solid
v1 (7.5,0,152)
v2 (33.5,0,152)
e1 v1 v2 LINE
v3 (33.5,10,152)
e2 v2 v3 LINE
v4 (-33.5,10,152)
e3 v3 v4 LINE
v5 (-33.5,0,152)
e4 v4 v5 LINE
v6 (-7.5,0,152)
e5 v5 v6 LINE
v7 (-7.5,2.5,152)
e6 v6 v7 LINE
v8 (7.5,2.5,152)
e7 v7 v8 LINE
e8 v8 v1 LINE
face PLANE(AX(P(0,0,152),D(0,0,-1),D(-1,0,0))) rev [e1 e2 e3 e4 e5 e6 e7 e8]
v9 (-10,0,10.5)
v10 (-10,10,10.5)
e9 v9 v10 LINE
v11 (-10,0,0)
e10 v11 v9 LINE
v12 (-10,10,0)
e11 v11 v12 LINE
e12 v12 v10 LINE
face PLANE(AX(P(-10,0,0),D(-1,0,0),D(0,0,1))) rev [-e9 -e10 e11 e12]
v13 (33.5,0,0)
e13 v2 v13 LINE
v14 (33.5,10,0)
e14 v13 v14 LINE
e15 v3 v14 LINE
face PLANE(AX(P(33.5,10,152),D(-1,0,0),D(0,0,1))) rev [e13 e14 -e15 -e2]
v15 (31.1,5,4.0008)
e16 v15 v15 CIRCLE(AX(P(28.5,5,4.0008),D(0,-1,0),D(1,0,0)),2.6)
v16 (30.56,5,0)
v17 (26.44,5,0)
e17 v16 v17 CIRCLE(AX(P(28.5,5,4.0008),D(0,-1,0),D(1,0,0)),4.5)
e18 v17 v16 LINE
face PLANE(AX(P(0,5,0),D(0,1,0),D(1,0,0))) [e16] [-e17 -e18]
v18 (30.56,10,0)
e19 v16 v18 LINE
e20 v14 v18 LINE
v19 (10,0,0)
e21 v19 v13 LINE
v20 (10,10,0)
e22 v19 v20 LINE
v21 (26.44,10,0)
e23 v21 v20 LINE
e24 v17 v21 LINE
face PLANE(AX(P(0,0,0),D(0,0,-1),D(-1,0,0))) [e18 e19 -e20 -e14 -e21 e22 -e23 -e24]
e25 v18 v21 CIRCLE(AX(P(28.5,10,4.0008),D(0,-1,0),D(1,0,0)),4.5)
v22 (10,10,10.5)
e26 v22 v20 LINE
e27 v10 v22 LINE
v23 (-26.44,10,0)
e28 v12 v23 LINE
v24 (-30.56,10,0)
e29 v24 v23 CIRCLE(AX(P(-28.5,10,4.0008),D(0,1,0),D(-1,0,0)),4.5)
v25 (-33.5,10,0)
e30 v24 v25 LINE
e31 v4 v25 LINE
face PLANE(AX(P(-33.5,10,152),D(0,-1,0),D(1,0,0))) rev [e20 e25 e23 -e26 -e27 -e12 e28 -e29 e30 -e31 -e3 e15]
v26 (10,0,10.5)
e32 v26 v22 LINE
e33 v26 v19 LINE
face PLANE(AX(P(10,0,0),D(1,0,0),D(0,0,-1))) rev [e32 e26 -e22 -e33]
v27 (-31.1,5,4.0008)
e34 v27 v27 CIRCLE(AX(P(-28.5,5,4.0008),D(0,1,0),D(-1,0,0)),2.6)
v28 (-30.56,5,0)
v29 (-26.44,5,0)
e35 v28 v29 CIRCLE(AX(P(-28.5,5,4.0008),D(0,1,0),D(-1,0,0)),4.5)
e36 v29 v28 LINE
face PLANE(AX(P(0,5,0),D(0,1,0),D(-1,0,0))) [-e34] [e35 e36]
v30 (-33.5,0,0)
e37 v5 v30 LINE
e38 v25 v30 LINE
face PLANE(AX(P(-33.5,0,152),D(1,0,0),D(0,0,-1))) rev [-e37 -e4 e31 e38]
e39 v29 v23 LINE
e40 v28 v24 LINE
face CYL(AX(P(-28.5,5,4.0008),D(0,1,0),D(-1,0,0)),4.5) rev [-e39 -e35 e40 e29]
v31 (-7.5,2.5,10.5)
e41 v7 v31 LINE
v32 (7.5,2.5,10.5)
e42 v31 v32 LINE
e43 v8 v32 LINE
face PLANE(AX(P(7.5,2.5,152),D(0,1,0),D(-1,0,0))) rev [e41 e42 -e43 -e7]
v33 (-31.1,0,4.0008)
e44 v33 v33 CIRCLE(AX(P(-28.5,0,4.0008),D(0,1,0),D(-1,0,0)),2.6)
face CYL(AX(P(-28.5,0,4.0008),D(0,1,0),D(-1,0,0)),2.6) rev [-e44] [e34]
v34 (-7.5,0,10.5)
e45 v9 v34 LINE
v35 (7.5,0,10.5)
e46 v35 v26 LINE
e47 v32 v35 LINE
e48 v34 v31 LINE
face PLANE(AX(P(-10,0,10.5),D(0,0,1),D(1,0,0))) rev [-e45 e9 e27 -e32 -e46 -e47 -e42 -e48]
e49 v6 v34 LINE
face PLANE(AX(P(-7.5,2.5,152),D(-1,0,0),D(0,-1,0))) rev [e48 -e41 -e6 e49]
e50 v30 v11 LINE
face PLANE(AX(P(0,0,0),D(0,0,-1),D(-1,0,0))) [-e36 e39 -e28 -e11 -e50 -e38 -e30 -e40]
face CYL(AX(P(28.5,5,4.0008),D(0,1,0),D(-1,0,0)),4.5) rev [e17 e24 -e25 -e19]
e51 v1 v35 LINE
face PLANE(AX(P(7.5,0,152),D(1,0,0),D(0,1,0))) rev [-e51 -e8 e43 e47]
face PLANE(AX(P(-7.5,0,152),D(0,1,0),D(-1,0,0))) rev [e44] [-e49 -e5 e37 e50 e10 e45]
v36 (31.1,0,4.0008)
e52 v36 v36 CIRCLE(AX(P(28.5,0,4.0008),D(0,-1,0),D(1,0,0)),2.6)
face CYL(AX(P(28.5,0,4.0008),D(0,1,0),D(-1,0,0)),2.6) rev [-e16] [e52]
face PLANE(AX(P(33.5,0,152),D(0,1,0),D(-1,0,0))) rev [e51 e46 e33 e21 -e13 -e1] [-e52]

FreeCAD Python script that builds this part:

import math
import FreeCAD as App
import Part
import Sketcher

doc = App.newDocument("Part")
body = doc.addObject("PartDesign::Body", "Body")

# Sketch on XY plane
sketch1 = body.newObject("Sketcher::SketchObject", "Sketch")
sketch1.AttachmentSupport = (doc.getObject("XY_Plane"), [""])
sketch1.MapMode = "FlatFace"
sketch1.addGeometry(Part.LineSegment(App.Vector(-33.5, 10, 0), App.Vector(-33.5, 0, 0)), False)
sketch1.addGeometry(Part.LineSegment(App.Vector(-33.5, 0, 0), App.Vector(-7.5, 0, 0)), False)
sketch1.addGeometry(Part.LineSegment(App.Vector(-7.5, 0, 0), App.Vector(-7.5, 2.5, 0)), False)
sketch1.addGeometry(Part.LineSegment(App.Vector(-7.5, 2.5, 0), App.Vector(7.5, 2.5, 0)), False)
sketch1.addGeometry(Part.LineSegment(App.Vector(7.5, 2.5, 0), App.Vector(7.5, 0, 0)), False)
sketch1.addGeometry(Part.LineSegment(App.Vector(7.5, 0, 0), App.Vector(33.5, 0, 0)), False)
sketch1.addGeometry(Part.LineSegment(App.Vector(33.5, 0, 0), App.Vector(33.5, 10, 0)), False)
sketch1.addGeometry(Part.LineSegment(App.Vector(33.5, 10, 0), App.Vector(-33.5, 10, 0)), False)
sketch1.addConstraint(Sketcher.Constraint("Coincident", 0, 2, 1, 1))
sketch1.addConstraint(Sketcher.Constraint("Coincident", 1, 2, 2, 1))
sketch1.addConstraint(Sketcher.Constraint("Coincident", 2, 2, 3, 1))
sketch1.addConstraint(Sketcher.Constraint("Coincident", 3, 2, 4, 1))
sketch1.addConstraint(Sketcher.Constraint("Coincident", 4, 2, 5, 1))
sketch1.addConstraint(Sketcher.Constraint("Coincident", 5, 2, 6, 1))
sketch1.addConstraint(Sketcher.Constraint("Coincident", 6, 2, 7, 1))
sketch1.addConstraint(Sketcher.Constraint("Coincident", 7, 2, 0, 1))
sketch1.addConstraint(Sketcher.Constraint("Vertical", 0))
sketch1.addConstraint(Sketcher.Constraint("Horizontal", 1))
sketch1.addConstraint(Sketcher.Constraint("Vertical", 2))
sketch1.addConstraint(Sketcher.Constraint("Horizontal", 3))
sketch1.addConstraint(Sketcher.Constraint("Vertical", 4))
sketch1.addConstraint(Sketcher.Constraint("Horizontal", 5))
sketch1.addConstraint(Sketcher.Constraint("Vertical", 6))
sketch1.addConstraint(Sketcher.Constraint("Horizontal", 7))
sketch1.addConstraint(Sketcher.Constraint("Symmetric", 1, 2, 4, 2, -1, 1))
sketch1.addConstraint(Sketcher.Constraint("Symmetric", 0, 2, 5, 2, -2))
sketch1.addConstraint(Sketcher.Constraint("DistanceX", 1, 1, 1, 2, 26.0))
sketch1.addConstraint(Sketcher.Constraint("DistanceX", 3, 1, 3, 2, 15.0))
sketch1.addConstraint(Sketcher.Constraint("DistanceY", 0, 2, 0, 1, 10.0))
sketch1.addConstraint(Sketcher.Constraint("DistanceY", 2, 1, 2, 2, 2.5))
pad1 = body.newObject("PartDesign::Pad", "Pad")
pad1.Profile = sketch1
pad1.Length = 152

# Sketch on XZ plane
sketch2 = body.newObject("Sketcher::SketchObject", "Sketch001")
sketch2.AttachmentSupport = (doc.getObject("XZ_Plane"), [""])
sketch2.MapMode = "FlatFace"
sketch2.AttachmentOffset = App.Placement(App.Vector(0, 0, -10), App.Rotation())
sketch2.addGeometry(Part.LineSegment(App.Vector(-10, 0, 0), App.Vector(-10, 10, 0)), False)
sketch2.addGeometry(Part.LineSegment(App.Vector(-10, 10, 0), App.Vector(10, 10, 0)), False)
sketch2.addGeometry(Part.LineSegment(App.Vector(10, 10, 0), App.Vector(10, 0, 0)), False)
sketch2.addGeometry(Part.LineSegment(App.Vector(10, 0, 0), App.Vector(-10, 0, 0)), False)
sketch2.addConstraint(Sketcher.Constraint("Coincident", 0, 2, 1, 1))
sketch2.addConstraint(Sketcher.Constraint("Coincident", 1, 2, 2, 1))
sketch2.addConstraint(Sketcher.Constraint("Coincident", 2, 2, 3, 1))
sketch2.addConstraint(Sketcher.Constraint("Coincident", 3, 2, 0, 1))
sketch2.addConstraint(Sketcher.Constraint("Vertical", 0))
sketch2.addConstraint(Sketcher.Constraint("Horizontal", 1))
sketch2.addConstraint(Sketcher.Constraint("Vertical", 2))
sketch2.addConstraint(Sketcher.Constraint("Horizontal", 3))
sketch2.addConstraint(Sketcher.Constraint("Symmetric", 2, 2, 3, 2, -1, 1))
sketch2.addConstraint(Sketcher.Constraint("DistanceX", 1, 1, 1, 2, 20.0))
sketch2.addConstraint(Sketcher.Constraint("DistanceY", 0, 1, 0, 2, 10.5))
pocket1 = body.newObject("PartDesign::Pocket", "Pocket")
pocket1.Profile = sketch2
pocket1.Type = "ThroughAll"
pocket1.Reversed = True

# Sketch on XZ plane
sketch3 = body.newObject("Sketcher::SketchObject", "Sketch002")
sketch3.AttachmentSupport = (doc.getObject("XZ_Plane"), [""])
sketch3.MapMode = "FlatFace"
sketch3.AttachmentOffset = App.Placement(App.Vector(0, 0, -10), App.Rotation())
sketch3.addGeometry(Part.LineSegment(App.Vector(-26.4, 0, 0), App.Vector(-30.6, 0, 0)), False)
sketch3.addGeometry(Part.ArcOfCircle(Part.Circle(App.Vector(-28.5, 4, 0), App.Vector(0, 0, 1), 4.5), math.radians(-63), math.radians(243)), False)
sketch3.addConstraint(Sketcher.Constraint("Coincident", 0, 1, 1, 1))
sketch3.addConstraint(Sketcher.Constraint("Coincident", 1, 2, 0, 2))
sketch3.addConstraint(Sketcher.Constraint("Horizontal", 0))
sketch3.addConstraint(Sketcher.Constraint("PointOnObject", 0, 1, -1))
sketch3.addConstraint(Sketcher.Constraint("Radius", 1, 4.5))
sketch3.addConstraint(Sketcher.Constraint("DistanceX", 0, 2, 0, 1, 4.12))
sketch3.addConstraint(Sketcher.Constraint("DistanceX", 1, 3, -1, 1, 28.5))
pocket2 = body.newObject("PartDesign::Pocket", "Pocket001")
pocket2.Profile = sketch3
pocket2.Length = 5
pocket2.Reversed = True

# Sketch on XZ plane
sketch4 = body.newObject("Sketcher::SketchObject", "Sketch003")
sketch4.AttachmentSupport = (doc.getObject("XZ_Plane"), [""])
sketch4.MapMode = "FlatFace"
sketch4.AttachmentOffset = App.Placement(App.Vector(0, 0, -5), App.Rotation())
sketch4.addGeometry(Part.Circle(App.Vector(-28.5, 4, 0), App.Vector(0, 0, 1), 2.6), False)
sketch4.addConstraint(Sketcher.Constraint("Diameter", 0, 5.2))
sketch4.addConstraint(Sketcher.Constraint("DistanceX", 0, 3, -1, 1, 28.5))
sketch4.addConstraint(Sketcher.Constraint("DistanceY", -1, 1, 0, 3, 4.0008))
pocket3 = body.newObject("PartDesign::Pocket", "Pocket002")
pocket3.Profile = sketch4
pocket3.Type = "ThroughAll"
pocket3.Reversed = True
doc.recompute()

mirrored = body.newObject("PartDesign::Mirrored", "Mirrored")
mirrored.Originals = [pocket2, pocket3]
mirrored.MirrorPlane = (doc.getObject("YZ_Plane"), [""])
body.Tip = mirrored

doc.recompute()
